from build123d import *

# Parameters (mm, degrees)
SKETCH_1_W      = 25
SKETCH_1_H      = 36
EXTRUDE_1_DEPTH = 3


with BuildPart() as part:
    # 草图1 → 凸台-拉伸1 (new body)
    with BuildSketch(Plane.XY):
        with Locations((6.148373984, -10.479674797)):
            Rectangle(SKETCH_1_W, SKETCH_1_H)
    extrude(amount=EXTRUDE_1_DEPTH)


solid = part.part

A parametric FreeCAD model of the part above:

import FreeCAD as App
import Part
import Sketcher
Q = App.Units.Quantity


def add_polygon(sketch, points):
    """Adds a closed chain of lines whose ends are joined by coincident constraints."""
    first, n = sketch.GeometryCount, len(points)
    for a, b in zip(points, points[1:] + points[:1]):
        sketch.addGeometry(Part.LineSegment(App.Vector(*a, 0), App.Vector(*b, 0)), False)
    for i in range(n):
        sketch.addConstraint(Sketcher.Constraint("Coincident", first + i, 2, first + (i + 1) % n, 1))

doc = App.newDocument("Part")
body = doc.addObject("PartDesign::Body", "Body")

# Sketch on XY plane
sketch1 = body.newObject("Sketcher::SketchObject", "Sketch")
sketch1.AttachmentSupport = (doc.getObject("XY_Plane"), [""])
sketch1.MapMode = "FlatFace"
add_polygon(sketch1, [(-6, 8), (-6, -28), (19, -28), (19, 8)])  # lines 0-3
sketch1.addConstraint([
    Sketcher.Constraint("Vertical", 0),
    Sketcher.Constraint("Horizontal", 1),
    Sketcher.Constraint("Vertical", 2),
    Sketcher.Constraint("Horizontal", 3),
    Sketcher.Constraint("DistanceX", 1, 1, 1, 2, Q("25 mm")),
    Sketcher.Constraint("DistanceY", 0, 2, 0, 1, Q("36 mm")),
    Sketcher.Constraint("DistanceX", 0, 2, -1, 1, Q("6.351626 mm")),
    Sketcher.Constraint("DistanceY", 0, 2, -1, 1, Q("28.479675 mm")),
])
pad1 = body.newObject("PartDesign::Pad", "Pad")
pad1.Profile = sketch1
pad1.Length = 3

doc.recompute()
